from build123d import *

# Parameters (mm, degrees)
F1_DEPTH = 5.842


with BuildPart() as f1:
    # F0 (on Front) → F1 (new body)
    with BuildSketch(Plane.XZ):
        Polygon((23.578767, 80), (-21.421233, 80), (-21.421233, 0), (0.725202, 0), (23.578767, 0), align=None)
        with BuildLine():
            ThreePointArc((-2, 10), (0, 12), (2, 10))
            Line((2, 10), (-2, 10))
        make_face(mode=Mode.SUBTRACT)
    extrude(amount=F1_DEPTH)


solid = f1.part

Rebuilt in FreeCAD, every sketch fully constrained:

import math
import FreeCAD as App
import Part
import Sketcher
from FreeCAD import Vector


def add_polygon(sketch, points):
    """Adds a closed chain of lines whose ends are joined by coincident constraints."""
    first, n = sketch.GeometryCount, len(points)
    for a, b in zip(points, points[1:] + points[:1]):
        sketch.addGeometry(Part.LineSegment(App.Vector(*a, 0), App.Vector(*b, 0)), False)
    for i in range(n):
        sketch.addConstraint(Sketcher.Constraint("Coincident", first + i, 2, first + (i + 1) % n, 1))

doc = App.newDocument("Part")
params = doc.addObject("Spreadsheet::Sheet", "Params")
for row, (alias, value) in enumerate([
    ("sketch1_radius", "2 mm"),
    ("sketch1_width", "45 mm"),
    ("sketch1_height", "80 mm"),
    ("pad1_length", "5.842 mm"),
], start=1):
    params.set(f"A{row}", alias)
    params.set(f"B{row}", "=" + value)
    params.setAlias(f"B{row}", alias)

body = doc.addObject("PartDesign::Body", "Body")

# Sketch on XZ plane
sketch1 = doc.addObject("Sketcher::SketchObject", "Sketch")
body.addObject(sketch1)
sketch1.AttachmentSupport = (doc.XZ_Plane, [""])
sketch1.MapMode = "FlatFace"
add_polygon(sketch1, [(23.6, 80), (-21.4, 80), (-21.4, 0), (23.6, 0)])  # lines 0-3
sketch1.addGeometry(Part.LineSegment(Vector(2, 10, 0), Vector(-2, 10, 0)), False)  # 4
sketch1.addGeometry(Part.ArcOfCircle(Part.Circle(Vector(0, 10, 0), Vector(0, 0, 1), 2), math.radians(0), math.radians(180)), False)  # 5
sketch1.addConstraint(Sketcher.Constraint("Coincident", 4, 1, 5, 1))
sketch1.addConstraint(Sketcher.Constraint("Coincident", 5, 2, 4, 2))
sketch1.addConstraint(Sketcher.Constraint("Horizontal", 0))
sketch1.addConstraint(Sketcher.Constraint("Vertical", 1))
sketch1.addConstraint(Sketcher.Constraint("Horizontal", 2))
sketch1.addConstraint(Sketcher.Constraint("Vertical", 3))
sketch1.addConstraint(Sketcher.Constraint("Horizontal", 4))
sketch1.addConstraint(Sketcher.Constraint("PointOnObject", 5, 3, -2))
sketch1.addConstraint(Sketcher.Constraint("PointOnObject", 1, 2, -1))
sketch1.addConstraint(Sketcher.Constraint("Horizontal", 5, 3, 4, 1))
sketch1.addConstraint(Sketcher.Constraint("Radius", 5, 2.0))
sketch1.addConstraint(Sketcher.Constraint("DistanceX", 0, 2, 0, 1, 45.0))
sketch1.addConstraint(Sketcher.Constraint("DistanceY", 1, 2, 1, 1, 80.0))
sketch1.addConstraint(Sketcher.Constraint("DistanceY", -1, 1, 5, 3, 10.0))
sketch1.addConstraint(Sketcher.Constraint("DistanceX", 0, 2, -1, 1, 21.421233))
sketch1.setExpression("Constraints[14]", "Params.sketch1_radius")
sketch1.setExpression("Constraints[15]", "Params.sketch1_width")
sketch1.setExpression("Constraints[16]", "Params.sketch1_height")
pad1 = doc.addObject("PartDesign::Pad", "Pad")
body.addObject(pad1)
pad1.Profile = sketch1
pad1.setExpression("Length", "Params.pad1_length")

doc.recompute()
